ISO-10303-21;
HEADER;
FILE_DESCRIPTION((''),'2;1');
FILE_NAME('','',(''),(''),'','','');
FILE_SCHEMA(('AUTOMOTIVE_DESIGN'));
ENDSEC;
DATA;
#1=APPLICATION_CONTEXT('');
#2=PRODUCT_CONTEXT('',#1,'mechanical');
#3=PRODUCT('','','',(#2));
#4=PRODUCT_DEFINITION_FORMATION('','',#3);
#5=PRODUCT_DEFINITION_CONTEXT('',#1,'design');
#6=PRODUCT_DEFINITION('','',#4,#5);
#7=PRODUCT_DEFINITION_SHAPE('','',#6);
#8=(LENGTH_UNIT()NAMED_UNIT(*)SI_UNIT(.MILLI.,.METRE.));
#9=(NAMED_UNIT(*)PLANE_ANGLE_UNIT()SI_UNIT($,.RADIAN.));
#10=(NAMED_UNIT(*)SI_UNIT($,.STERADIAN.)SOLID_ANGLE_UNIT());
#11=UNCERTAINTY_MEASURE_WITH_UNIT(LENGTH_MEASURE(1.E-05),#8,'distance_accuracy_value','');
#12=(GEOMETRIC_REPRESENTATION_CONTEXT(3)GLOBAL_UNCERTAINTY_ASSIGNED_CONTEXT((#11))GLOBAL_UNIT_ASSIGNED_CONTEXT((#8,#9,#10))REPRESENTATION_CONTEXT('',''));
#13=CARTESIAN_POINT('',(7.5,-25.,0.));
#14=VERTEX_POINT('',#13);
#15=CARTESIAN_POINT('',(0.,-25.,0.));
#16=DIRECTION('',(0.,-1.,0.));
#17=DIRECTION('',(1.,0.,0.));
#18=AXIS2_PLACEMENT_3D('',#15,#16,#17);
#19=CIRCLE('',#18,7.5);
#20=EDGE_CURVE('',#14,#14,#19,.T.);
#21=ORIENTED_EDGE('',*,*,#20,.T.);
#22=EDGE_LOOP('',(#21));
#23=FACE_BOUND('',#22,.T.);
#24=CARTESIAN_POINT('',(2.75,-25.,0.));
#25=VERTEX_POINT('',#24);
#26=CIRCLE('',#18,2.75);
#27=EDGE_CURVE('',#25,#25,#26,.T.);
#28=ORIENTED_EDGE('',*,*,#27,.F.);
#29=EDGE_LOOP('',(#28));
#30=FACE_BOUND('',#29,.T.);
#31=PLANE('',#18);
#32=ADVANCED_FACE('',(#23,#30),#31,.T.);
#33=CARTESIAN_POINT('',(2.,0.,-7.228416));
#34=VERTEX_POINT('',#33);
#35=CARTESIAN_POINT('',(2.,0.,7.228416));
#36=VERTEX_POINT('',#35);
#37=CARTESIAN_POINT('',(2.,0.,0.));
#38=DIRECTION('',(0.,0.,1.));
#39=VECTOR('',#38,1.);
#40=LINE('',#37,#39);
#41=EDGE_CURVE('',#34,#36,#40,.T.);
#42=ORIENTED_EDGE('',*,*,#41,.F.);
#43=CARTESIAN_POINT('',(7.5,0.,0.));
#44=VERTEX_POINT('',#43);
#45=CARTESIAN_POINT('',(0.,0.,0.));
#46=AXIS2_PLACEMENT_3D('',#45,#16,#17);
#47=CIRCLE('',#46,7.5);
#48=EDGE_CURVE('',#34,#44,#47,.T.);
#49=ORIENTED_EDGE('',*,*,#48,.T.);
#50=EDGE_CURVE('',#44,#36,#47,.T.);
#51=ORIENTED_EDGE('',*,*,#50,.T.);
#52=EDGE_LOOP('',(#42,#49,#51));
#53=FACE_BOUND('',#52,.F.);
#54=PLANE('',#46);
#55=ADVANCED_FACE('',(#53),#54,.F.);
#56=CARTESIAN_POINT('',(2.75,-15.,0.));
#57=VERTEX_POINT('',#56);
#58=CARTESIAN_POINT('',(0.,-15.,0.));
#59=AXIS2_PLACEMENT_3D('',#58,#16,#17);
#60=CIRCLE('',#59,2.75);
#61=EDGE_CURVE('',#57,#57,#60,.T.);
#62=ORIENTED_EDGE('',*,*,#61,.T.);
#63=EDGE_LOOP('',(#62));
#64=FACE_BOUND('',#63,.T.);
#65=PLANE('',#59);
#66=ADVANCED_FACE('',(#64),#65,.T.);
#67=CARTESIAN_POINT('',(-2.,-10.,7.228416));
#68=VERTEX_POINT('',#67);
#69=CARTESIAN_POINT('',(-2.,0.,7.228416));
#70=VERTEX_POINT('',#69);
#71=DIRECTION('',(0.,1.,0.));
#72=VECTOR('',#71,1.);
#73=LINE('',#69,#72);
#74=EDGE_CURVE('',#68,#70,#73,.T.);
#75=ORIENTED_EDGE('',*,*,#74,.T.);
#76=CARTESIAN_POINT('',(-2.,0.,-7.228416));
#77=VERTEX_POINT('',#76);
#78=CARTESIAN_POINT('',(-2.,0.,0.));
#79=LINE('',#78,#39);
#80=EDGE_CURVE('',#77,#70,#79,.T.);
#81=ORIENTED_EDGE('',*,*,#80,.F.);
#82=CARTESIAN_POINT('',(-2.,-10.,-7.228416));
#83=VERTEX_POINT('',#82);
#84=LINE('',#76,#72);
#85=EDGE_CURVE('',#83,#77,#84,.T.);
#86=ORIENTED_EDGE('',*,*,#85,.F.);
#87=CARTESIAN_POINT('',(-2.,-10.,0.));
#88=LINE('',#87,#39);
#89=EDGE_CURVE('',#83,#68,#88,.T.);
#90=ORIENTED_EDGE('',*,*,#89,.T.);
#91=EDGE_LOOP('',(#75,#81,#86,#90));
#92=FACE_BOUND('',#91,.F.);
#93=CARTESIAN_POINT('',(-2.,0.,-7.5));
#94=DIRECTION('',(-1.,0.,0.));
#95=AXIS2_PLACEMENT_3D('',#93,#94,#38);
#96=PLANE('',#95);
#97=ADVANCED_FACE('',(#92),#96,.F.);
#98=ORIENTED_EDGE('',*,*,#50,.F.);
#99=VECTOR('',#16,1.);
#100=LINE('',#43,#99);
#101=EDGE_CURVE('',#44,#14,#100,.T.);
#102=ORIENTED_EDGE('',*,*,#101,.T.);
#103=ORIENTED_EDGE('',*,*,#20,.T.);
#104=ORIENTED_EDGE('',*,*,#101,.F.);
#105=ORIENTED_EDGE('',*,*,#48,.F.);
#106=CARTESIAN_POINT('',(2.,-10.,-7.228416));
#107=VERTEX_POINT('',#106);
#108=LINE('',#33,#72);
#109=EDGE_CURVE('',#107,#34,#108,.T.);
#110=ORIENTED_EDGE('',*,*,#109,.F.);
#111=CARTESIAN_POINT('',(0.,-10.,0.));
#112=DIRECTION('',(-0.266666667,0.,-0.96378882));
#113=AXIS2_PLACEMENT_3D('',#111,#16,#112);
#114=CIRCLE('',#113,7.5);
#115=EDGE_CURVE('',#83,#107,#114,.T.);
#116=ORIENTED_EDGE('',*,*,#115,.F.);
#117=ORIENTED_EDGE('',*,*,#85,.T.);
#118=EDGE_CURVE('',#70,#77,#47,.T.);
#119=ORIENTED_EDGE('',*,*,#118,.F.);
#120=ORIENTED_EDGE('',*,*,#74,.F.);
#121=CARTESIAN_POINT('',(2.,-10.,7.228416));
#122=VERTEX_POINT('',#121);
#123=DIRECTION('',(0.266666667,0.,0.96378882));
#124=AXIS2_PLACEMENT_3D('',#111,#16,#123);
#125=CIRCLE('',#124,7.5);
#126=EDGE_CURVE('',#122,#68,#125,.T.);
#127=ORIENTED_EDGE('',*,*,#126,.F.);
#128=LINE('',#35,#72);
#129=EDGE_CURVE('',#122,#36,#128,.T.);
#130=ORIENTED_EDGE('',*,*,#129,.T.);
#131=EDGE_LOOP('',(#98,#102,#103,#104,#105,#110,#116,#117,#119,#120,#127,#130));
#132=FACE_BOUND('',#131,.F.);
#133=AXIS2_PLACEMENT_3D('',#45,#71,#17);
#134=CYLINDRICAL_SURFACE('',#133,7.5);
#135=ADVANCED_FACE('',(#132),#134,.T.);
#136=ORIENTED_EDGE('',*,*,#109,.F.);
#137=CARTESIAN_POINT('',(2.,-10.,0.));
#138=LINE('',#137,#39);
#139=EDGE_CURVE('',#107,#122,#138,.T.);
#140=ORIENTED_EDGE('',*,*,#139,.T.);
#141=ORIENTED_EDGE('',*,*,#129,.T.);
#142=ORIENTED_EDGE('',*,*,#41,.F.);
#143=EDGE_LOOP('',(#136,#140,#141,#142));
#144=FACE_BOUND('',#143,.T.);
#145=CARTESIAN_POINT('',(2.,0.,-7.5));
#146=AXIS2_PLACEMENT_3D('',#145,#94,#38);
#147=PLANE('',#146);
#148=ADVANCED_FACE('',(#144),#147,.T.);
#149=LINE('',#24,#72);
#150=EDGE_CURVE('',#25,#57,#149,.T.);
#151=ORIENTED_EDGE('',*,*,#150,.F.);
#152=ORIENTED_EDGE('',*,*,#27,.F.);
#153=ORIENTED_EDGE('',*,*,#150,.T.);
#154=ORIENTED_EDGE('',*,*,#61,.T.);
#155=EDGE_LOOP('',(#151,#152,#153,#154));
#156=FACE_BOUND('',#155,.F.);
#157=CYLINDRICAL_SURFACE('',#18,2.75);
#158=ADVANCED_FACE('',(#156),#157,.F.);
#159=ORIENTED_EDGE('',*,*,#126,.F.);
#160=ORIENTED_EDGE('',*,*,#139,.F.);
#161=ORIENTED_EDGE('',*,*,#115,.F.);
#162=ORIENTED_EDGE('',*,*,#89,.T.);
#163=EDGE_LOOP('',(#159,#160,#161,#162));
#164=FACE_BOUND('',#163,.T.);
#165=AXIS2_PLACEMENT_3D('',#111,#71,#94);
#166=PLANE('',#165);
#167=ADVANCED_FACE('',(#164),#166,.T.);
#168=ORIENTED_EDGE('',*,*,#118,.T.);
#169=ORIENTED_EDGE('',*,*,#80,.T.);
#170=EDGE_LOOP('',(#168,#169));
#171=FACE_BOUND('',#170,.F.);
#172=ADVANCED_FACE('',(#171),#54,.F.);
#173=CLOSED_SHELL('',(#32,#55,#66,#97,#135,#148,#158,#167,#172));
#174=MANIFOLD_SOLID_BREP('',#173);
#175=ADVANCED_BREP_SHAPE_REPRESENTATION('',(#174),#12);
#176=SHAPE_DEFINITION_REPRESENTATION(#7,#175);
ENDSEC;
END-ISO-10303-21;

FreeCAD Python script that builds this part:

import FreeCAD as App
import Part
import Sketcher

V = App.Vector


def add_polygon(sketch, points):
    """Adds a closed chain of lines whose ends are joined by coincident constraints."""
    first, n = sketch.GeometryCount, len(points)
    for a, b in zip(points, points[1:] + points[:1]):
        sketch.addGeometry(Part.LineSegment(App.Vector(*a, 0), App.Vector(*b, 0)), False)
    for i in range(n):
        sketch.addConstraint(Sketcher.Constraint("Coincident", first + i, 2, first + (i + 1) % n, 1))

doc = App.newDocument("Part")
body = doc.addObject("PartDesign::Body", "Body")

sketch1 = body.newObject("Sketcher::SketchObject", "Sketch")
sketch1.AttachmentSupport = (doc.getObject("XZ_Plane"), [""])
sketch1.MapMode = "FlatFace"
sketch1.addGeometry(Part.Circle(V(0, 0, 0), V(0, 0, 1), 7.5), False)
sketch1.addConstraint([
    Sketcher.Constraint("Coincident", 0, 3, -1, 1),
    Sketcher.Constraint("Diameter", 0, 15.0),
])
pad1 = body.newObject("PartDesign::Pad", "Pad")
pad1.Profile = sketch1
pad1.Length = 25

sketch2 = body.newObject("Sketcher::SketchObject", "Sketch001")
sketch2.AttachmentSupport = (doc.getObject("XZ_Plane"), [""])
sketch2.MapMode = "FlatFace"
sketch2.AttachmentOffset = App.Placement(V(0, 0, 25), App.Rotation())
sketch2.addGeometry(Part.Circle(V(0, 0, 0), V(0, 0, 1), 2.75), False)
sketch2.addConstraint([
    Sketcher.Constraint("Coincident", 0, 3, -1, 1),
    Sketcher.Constraint("Diameter", 0, 5.5),
])
pocket1 = body.newObject("PartDesign::Pocket", "Pocket")
pocket1.Profile = sketch2
pocket1.Length = 10

sketch3 = body.newObject("Sketcher::SketchObject", "Sketch002")
sketch3.AttachmentSupport = (doc.getObject("XZ_Plane"), [""])
sketch3.MapMode = "FlatFace"
add_polygon(sketch3, [(2, 7.5), (2, -7.5), (-2, -7.5), (-2, 7.5)])
sketch3.addConstraint([
    Sketcher.Constraint("Vertical", 0),
    Sketcher.Constraint("Horizontal", 1),
    Sketcher.Constraint("Vertical", 2),
    Sketcher.Constraint("Horizontal", 3),
    Sketcher.Constraint("Symmetric", 0, 2, 2, 2, -1, 1),
    Sketcher.Constraint("DistanceX", 1, 2, 1, 1, 4.0),
    Sketcher.Constraint("DistanceY", 0, 2, 0, 1, 15.0),
])
pocket2 = body.newObject("PartDesign::Pocket", "Pocket001")
pocket2.Profile = sketch3
pocket2.Length = 10
pocket2.Reversed = True

doc.recompute()
